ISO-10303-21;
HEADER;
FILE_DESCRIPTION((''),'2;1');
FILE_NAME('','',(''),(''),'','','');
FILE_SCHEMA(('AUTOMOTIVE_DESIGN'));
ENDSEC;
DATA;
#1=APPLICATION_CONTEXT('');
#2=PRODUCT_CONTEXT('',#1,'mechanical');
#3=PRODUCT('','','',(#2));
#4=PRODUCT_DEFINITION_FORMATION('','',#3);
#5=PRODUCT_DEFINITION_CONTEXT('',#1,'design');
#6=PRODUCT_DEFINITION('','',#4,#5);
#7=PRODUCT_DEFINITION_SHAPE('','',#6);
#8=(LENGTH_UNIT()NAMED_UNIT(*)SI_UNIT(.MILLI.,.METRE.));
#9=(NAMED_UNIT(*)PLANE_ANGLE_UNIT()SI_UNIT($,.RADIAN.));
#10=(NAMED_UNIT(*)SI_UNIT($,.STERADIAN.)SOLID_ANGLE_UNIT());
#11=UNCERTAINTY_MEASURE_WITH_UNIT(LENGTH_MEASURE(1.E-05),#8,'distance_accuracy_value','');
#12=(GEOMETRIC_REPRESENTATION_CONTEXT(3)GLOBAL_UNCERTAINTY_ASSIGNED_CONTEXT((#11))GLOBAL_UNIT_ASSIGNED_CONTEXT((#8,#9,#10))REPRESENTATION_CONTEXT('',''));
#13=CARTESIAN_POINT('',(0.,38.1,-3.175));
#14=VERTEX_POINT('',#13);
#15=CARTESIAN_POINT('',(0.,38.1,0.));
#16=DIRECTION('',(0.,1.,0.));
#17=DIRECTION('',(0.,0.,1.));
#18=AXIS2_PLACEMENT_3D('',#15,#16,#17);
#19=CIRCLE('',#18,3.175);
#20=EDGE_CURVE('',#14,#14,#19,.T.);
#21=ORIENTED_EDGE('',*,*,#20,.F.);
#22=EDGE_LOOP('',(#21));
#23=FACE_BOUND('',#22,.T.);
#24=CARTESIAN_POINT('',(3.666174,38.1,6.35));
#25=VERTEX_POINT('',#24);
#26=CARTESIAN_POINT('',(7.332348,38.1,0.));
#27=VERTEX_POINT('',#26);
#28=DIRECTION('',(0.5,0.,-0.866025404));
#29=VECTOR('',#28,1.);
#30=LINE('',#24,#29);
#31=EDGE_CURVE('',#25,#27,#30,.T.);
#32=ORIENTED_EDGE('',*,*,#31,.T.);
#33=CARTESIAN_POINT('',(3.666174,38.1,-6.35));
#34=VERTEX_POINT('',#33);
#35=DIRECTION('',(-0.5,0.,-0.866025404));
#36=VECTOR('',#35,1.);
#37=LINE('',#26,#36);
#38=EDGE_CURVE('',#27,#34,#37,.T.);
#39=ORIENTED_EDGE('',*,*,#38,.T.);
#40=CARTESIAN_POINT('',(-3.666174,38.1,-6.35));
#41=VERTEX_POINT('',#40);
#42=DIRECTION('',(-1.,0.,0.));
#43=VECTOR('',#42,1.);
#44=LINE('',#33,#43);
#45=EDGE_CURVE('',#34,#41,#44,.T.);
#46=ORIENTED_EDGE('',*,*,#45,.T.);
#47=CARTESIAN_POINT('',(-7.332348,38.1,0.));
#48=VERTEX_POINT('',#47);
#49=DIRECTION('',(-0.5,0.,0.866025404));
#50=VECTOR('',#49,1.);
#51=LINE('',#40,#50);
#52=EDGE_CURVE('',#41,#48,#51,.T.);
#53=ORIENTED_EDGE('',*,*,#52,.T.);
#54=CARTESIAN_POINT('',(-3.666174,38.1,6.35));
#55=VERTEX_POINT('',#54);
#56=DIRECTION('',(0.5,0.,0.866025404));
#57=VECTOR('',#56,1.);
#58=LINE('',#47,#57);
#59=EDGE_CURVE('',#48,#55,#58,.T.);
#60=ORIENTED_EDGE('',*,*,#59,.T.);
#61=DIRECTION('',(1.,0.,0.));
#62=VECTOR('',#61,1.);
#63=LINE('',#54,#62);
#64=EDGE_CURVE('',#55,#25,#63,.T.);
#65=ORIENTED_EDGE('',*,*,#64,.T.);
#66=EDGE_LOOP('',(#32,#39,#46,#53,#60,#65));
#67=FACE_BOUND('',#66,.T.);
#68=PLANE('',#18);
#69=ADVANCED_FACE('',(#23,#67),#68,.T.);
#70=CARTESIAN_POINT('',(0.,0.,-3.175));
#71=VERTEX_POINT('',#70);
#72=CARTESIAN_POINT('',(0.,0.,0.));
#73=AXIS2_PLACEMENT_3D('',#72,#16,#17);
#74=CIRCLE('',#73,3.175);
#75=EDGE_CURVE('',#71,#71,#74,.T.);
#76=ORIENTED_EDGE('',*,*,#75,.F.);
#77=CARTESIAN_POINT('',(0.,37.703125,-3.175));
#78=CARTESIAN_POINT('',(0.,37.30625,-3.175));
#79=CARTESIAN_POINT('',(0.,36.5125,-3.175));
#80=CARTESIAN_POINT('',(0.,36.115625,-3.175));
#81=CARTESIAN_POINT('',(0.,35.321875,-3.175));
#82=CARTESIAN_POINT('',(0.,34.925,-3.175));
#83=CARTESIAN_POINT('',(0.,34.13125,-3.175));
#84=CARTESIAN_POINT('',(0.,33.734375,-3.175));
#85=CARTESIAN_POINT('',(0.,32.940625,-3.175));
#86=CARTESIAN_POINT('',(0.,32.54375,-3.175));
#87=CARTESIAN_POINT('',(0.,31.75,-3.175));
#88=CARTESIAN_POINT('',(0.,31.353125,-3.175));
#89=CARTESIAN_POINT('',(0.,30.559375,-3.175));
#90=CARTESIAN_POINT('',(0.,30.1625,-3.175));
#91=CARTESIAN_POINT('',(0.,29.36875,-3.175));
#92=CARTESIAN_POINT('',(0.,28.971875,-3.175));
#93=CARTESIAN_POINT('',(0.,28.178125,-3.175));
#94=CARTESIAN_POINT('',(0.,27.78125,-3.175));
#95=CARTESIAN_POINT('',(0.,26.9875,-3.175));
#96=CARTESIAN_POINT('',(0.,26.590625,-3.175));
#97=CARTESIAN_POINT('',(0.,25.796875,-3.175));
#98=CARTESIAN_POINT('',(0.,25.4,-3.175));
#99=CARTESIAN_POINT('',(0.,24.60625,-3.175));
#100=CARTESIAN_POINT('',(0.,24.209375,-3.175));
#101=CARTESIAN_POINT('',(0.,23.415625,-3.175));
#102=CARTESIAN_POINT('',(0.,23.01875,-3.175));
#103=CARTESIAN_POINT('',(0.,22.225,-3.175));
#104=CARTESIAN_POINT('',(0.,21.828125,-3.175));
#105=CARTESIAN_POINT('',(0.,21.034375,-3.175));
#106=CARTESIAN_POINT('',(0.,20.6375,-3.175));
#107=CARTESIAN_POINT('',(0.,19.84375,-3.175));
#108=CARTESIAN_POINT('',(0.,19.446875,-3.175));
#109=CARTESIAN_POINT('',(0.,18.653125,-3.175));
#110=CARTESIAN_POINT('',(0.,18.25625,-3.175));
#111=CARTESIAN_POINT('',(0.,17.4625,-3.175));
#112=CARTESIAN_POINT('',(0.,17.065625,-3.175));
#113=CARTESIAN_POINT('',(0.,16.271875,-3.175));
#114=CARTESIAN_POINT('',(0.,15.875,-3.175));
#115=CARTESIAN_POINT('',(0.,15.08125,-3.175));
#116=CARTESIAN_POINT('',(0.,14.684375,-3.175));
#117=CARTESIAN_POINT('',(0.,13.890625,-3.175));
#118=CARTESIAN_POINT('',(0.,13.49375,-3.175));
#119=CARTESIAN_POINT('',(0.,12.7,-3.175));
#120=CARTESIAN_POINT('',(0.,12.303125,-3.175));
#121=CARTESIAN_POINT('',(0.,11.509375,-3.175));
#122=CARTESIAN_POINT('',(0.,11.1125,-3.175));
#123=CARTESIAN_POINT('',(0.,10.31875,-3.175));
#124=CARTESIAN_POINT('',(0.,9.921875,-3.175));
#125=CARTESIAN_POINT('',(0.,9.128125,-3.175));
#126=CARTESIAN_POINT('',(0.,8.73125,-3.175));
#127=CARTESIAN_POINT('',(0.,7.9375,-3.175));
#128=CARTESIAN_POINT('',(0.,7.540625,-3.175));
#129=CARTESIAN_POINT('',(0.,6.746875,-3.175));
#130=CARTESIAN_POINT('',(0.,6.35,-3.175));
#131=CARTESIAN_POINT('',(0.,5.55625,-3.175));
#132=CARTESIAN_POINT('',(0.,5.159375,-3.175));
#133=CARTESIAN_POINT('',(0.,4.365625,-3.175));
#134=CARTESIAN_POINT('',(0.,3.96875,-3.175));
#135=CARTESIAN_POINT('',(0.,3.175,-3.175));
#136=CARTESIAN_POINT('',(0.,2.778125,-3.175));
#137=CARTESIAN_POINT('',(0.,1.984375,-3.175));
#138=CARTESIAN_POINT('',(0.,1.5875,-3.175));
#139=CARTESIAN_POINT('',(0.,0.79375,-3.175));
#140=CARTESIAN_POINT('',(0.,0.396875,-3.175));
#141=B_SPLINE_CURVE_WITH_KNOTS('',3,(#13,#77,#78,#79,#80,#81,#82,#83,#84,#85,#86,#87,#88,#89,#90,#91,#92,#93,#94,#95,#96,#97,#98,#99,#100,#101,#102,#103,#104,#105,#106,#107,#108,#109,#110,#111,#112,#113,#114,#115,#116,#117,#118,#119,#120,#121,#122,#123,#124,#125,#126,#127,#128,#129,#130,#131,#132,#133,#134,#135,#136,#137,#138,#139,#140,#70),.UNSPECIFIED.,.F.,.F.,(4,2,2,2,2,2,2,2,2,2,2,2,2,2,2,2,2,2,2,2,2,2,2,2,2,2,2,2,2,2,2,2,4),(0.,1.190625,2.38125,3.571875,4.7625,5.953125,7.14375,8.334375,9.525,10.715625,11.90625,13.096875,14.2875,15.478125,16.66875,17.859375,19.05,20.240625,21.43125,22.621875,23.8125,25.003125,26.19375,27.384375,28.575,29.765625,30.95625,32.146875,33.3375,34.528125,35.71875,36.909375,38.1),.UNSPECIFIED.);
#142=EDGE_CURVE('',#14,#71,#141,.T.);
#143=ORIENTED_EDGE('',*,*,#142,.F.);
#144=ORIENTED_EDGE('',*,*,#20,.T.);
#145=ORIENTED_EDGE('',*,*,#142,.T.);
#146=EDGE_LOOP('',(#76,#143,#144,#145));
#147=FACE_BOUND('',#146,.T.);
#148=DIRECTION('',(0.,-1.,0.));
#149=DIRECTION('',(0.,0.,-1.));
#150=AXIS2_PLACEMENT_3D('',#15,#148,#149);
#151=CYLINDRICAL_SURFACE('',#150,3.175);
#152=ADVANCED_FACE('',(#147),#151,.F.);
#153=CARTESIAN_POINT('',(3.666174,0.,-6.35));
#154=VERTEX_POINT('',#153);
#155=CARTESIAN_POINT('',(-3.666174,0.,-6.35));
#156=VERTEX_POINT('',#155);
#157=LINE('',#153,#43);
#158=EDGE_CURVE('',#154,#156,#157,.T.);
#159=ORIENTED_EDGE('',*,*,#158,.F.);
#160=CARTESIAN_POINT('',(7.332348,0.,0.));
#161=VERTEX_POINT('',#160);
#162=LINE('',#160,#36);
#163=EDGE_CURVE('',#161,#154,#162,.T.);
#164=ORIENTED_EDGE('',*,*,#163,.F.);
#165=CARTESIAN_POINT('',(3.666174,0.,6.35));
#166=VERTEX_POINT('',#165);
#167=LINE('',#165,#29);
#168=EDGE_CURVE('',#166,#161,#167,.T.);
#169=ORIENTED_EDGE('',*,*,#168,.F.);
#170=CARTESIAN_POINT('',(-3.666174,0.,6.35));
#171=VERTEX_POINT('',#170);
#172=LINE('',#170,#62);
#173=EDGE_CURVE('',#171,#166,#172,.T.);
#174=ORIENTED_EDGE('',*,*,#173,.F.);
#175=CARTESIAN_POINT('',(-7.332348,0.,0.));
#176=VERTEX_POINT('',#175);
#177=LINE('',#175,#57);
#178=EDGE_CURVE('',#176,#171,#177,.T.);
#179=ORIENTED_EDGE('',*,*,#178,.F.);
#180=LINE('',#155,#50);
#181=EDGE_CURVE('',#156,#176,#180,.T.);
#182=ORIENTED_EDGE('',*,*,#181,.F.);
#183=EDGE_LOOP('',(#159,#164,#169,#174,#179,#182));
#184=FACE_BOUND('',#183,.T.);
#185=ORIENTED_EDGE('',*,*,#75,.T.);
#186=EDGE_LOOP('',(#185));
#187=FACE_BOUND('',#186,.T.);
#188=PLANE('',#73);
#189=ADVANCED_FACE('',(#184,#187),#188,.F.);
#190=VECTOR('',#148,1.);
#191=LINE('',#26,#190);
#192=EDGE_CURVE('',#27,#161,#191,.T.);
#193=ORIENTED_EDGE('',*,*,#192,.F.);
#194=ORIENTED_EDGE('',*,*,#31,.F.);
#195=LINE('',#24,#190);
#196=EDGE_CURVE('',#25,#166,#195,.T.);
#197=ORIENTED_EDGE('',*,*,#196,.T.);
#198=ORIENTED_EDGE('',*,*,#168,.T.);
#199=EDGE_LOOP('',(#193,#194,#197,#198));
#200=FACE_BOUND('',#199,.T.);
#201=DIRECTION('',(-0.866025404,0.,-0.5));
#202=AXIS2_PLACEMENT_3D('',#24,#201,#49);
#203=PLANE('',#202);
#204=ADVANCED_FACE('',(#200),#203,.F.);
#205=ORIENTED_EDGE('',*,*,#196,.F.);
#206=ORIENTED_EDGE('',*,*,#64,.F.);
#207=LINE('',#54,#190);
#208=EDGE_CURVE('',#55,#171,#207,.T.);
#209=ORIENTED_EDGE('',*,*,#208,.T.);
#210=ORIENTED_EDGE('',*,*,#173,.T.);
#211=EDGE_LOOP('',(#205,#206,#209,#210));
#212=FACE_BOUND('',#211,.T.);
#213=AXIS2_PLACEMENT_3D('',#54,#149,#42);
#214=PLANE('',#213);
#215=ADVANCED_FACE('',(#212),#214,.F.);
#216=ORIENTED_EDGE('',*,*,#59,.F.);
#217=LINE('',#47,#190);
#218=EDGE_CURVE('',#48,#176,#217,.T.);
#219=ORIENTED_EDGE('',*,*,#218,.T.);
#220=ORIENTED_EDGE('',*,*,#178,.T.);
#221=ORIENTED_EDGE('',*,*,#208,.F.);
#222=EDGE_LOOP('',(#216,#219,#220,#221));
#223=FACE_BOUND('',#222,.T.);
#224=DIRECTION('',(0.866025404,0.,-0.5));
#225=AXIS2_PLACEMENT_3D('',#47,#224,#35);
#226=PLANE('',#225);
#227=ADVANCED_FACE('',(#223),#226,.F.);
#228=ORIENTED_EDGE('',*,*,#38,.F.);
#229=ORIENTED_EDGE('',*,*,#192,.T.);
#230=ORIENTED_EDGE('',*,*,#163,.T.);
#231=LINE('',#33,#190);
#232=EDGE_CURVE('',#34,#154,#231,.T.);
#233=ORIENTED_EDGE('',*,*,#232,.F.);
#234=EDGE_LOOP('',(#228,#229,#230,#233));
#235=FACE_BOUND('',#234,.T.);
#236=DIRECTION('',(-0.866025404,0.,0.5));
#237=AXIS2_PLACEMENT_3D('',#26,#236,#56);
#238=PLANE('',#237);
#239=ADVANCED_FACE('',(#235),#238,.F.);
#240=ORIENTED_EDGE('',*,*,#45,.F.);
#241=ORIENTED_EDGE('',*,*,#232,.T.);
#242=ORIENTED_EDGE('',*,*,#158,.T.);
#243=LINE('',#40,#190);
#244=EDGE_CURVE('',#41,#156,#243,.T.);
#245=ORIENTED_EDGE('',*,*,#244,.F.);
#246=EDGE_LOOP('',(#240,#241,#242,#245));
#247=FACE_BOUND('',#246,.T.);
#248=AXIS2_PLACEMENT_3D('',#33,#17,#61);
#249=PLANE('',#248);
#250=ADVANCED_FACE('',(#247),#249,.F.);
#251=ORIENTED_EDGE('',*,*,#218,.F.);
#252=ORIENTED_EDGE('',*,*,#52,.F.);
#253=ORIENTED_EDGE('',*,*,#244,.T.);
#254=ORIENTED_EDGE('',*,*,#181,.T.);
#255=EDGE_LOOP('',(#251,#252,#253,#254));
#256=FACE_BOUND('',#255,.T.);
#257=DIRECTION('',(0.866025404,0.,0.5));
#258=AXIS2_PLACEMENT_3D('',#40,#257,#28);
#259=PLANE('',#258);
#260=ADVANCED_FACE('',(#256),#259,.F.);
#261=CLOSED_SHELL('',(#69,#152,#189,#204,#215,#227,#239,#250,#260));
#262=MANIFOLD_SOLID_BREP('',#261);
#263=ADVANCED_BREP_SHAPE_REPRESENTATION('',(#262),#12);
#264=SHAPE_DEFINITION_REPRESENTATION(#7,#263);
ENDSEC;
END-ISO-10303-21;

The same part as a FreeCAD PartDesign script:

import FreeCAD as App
import Part
import Sketcher
from FreeCAD import Vector
Q = App.Units.Quantity

doc = App.newDocument("Part")
body = doc.addObject("PartDesign::Body", "Body")

# Sketch on XZ plane
sketch1 = body.newObject("Sketcher::SketchObject", "Sketch")
sketch1.AttachmentSupport = (doc.getObject("XZ_Plane"), [""])
sketch1.MapMode = "FlatFace"
sketch1.addGeometry(Part.LineSegment(Vector(7.332348, 0, 0), Vector(3.666174, -6.35, 0)), False)
sketch1.addGeometry(Part.LineSegment(Vector(3.666174, -6.35, 0), Vector(-3.666174, -6.35, 0)), False)
sketch1.addGeometry(Part.LineSegment(Vector(-3.666174, -6.35, 0), Vector(-7.332348, 0, 0)), False)
sketch1.addGeometry(Part.LineSegment(Vector(-7.332348, 0, 0), Vector(-3.666174, 6.35, 0)), False)
sketch1.addGeometry(Part.LineSegment(Vector(-3.666174, 6.35, 0), Vector(3.666174, 6.35, 0)), False)
sketch1.addGeometry(Part.LineSegment(Vector(3.666174, 6.35, 0), Vector(7.332348, 0, 0)), False)
sketch1.addGeometry(Part.Circle(Vector(0, 0, 0), Vector(0, 0, 1), 3.175), False)
sketch1.addConstraint(Sketcher.Constraint("Coincident", 0, 2, 1, 1))
sketch1.addConstraint(Sketcher.Constraint("Coincident", 1, 2, 2, 1))
sketch1.addConstraint(Sketcher.Constraint("Coincident", 2, 2, 3, 1))
sketch1.addConstraint(Sketcher.Constraint("Coincident", 3, 2, 4, 1))
sketch1.addConstraint(Sketcher.Constraint("Coincident", 4, 2, 5, 1))
sketch1.addConstraint(Sketcher.Constraint("Coincident", 5, 2, 0, 1))
sketch1.addConstraint(Sketcher.Constraint("Horizontal", 1))
sketch1.addConstraint(Sketcher.Constraint("Horizontal", 4))
sketch1.addConstraint(Sketcher.Constraint("Coincident", 6, 3, -1, 1))
sketch1.addConstraint(Sketcher.Constraint("Symmetric", 0, 2, 3, 2, -1, 1))
sketch1.addConstraint(Sketcher.Constraint("Symmetric", 2, 2, 5, 2, -1, 1))
sketch1.addConstraint(Sketcher.Constraint("PointOnObject", 2, 2, -1))
sketch1.addConstraint(Sketcher.Constraint("Parallel", 2, 5))
sketch1.addConstraint(Sketcher.Constraint("Vertical", 1, 2, 3, 2))
sketch1.addConstraint(Sketcher.Constraint("Diameter", 6, Q("0.25 in")))
sketch1.addConstraint(Sketcher.Constraint("Angle", 0, Q("-120 deg")))
sketch1.addConstraint(Sketcher.Constraint("DistanceY", 1, 2, 3, 2, Q("0.5 in")))
sketch1.addConstraint(Sketcher.Constraint("DistanceX", 1, 2, 1, 1, 7.332348))
pad1 = body.newObject("PartDesign::Pad", "Pad")
pad1.Profile = sketch1
pad1.Length = Q("1.5 in")
pad1.Reversed = True

doc.recompute()
